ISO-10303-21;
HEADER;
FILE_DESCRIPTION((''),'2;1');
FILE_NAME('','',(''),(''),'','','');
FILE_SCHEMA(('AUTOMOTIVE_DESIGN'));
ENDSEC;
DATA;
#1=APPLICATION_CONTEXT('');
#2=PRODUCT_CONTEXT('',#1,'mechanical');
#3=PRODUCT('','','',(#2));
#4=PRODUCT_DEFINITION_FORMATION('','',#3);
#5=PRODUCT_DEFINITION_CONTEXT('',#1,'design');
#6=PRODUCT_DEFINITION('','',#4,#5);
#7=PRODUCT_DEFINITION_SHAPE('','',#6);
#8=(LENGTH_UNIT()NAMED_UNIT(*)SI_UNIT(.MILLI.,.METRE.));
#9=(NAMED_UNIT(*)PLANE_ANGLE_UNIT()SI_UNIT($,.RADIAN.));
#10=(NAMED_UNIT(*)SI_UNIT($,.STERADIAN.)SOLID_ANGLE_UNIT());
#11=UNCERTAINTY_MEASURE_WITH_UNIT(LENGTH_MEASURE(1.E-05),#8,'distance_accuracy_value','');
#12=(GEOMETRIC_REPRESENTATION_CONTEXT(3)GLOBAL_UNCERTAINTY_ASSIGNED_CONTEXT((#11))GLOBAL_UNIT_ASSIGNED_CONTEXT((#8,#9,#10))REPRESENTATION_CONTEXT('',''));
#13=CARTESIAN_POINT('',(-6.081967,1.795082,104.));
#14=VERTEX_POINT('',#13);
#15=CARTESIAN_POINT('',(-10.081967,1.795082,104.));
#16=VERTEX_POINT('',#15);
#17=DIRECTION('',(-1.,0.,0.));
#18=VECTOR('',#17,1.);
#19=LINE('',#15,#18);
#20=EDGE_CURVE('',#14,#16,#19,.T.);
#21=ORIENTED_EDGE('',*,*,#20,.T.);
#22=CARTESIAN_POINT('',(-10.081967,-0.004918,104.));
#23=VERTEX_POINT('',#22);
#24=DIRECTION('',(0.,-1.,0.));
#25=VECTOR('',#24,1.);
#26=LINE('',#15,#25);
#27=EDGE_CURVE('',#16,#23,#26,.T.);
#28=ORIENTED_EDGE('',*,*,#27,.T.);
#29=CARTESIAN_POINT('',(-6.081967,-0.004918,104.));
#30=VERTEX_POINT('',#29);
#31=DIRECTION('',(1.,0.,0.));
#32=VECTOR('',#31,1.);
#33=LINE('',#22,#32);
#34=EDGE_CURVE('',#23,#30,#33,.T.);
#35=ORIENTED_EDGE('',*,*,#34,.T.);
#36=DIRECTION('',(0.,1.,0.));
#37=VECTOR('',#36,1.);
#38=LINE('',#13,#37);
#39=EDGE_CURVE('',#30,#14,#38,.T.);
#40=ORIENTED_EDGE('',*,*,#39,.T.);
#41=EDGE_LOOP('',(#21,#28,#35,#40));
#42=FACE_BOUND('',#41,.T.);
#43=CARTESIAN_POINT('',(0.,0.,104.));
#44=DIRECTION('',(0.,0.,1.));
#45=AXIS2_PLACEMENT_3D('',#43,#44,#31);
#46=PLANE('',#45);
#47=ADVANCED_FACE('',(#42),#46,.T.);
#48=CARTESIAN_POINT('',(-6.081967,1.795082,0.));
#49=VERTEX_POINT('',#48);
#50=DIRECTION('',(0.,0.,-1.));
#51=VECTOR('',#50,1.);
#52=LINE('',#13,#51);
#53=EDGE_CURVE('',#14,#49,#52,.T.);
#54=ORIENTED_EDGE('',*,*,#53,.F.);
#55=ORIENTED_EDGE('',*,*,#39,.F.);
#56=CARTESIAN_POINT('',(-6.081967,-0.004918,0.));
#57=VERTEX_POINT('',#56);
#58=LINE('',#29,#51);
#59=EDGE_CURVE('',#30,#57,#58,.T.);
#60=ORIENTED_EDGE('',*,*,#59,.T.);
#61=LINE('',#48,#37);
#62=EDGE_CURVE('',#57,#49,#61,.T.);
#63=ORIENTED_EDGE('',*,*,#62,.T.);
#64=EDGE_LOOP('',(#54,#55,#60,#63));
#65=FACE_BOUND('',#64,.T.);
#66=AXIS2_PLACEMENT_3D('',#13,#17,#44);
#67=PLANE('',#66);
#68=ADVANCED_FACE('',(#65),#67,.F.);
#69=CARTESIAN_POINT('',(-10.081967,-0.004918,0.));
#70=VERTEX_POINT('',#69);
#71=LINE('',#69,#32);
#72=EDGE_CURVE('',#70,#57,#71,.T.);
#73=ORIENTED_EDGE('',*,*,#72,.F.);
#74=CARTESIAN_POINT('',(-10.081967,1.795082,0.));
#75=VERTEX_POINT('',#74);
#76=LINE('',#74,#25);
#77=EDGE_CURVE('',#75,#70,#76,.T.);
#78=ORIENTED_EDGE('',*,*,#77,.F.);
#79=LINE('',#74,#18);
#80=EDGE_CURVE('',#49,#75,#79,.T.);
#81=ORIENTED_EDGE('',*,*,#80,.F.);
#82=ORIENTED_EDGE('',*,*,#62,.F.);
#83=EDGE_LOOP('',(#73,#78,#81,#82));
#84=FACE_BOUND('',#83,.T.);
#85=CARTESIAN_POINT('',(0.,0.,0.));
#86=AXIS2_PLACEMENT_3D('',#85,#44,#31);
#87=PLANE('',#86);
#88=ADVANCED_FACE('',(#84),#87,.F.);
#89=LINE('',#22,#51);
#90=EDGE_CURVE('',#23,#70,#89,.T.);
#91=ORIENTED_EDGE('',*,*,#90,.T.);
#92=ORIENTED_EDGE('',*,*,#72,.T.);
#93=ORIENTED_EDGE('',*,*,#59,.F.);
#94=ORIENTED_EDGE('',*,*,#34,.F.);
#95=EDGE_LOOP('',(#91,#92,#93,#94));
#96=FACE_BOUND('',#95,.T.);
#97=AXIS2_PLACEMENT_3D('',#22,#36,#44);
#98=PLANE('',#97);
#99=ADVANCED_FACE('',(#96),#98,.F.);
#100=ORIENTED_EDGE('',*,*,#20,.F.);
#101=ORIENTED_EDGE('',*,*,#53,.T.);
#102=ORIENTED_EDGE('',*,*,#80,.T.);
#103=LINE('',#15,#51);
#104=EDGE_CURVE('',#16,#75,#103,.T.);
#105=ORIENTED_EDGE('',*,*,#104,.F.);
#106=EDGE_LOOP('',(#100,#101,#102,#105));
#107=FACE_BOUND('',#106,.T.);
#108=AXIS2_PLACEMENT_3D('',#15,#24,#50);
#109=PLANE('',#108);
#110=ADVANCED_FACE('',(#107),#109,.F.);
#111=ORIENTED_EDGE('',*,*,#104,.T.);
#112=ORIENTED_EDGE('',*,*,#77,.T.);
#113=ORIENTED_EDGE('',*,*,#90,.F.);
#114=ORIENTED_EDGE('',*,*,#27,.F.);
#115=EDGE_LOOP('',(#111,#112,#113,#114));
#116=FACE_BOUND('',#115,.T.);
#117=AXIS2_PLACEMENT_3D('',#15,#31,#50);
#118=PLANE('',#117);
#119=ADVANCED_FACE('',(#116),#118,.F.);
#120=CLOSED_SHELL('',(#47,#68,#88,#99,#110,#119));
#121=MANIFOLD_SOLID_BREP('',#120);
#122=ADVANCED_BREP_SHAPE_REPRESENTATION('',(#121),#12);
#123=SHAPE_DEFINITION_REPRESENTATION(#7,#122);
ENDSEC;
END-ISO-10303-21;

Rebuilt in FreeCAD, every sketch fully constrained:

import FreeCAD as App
import Part
import Sketcher
from FreeCAD import Vector
Q = App.Units.Quantity

doc = App.newDocument("Part")
body = doc.addObject("PartDesign::Body", "Body")

sketch1 = body.newObject("Sketcher::SketchObject", "Sketch")
sketch1.AttachmentSupport = (doc.getObject("XY_Plane"), [""])
sketch1.MapMode = "FlatFace"
sketch1.addGeometry([
    Part.LineSegment(Vector(-10.1, 1.8, 0), Vector(-10.1, 0, 0)),
    Part.LineSegment(Vector(-10.1, 0, 0), Vector(-6.1, 0, 0)),
    Part.LineSegment(Vector(-6.1, 0, 0), Vector(-6.1, 1.8, 0)),
    Part.LineSegment(Vector(-6.1, 1.8, 0), Vector(-10.1, 1.8, 0)),
], False)
sketch1.addConstraint([
    Sketcher.Constraint("Coincident", 0, 2, 1, 1),
    Sketcher.Constraint("Coincident", 1, 2, 2, 1),
    Sketcher.Constraint("Coincident", 2, 2, 3, 1),
    Sketcher.Constraint("Coincident", 3, 2, 0, 1),
    Sketcher.Constraint("Vertical", 0),
    Sketcher.Constraint("Horizontal", 1),
    Sketcher.Constraint("Vertical", 2),
    Sketcher.Constraint("Horizontal", 3),
    Sketcher.Constraint("DistanceX", 1, 1, 1, 2, Q("4 mm")),
    Sketcher.Constraint("DistanceY", 0, 2, 0, 1, Q("1.8 mm")),
    Sketcher.Constraint("DistanceY", 0, 2, -1, 1, Q("0.004918 mm")),
    Sketcher.Constraint("DistanceX", 0, 2, -1, 1, Q("10.081967 mm")),
])
pad1 = body.newObject("PartDesign::Pad", "Pad")
pad1.Profile = sketch1
pad1.Length = 104

doc.recompute()
